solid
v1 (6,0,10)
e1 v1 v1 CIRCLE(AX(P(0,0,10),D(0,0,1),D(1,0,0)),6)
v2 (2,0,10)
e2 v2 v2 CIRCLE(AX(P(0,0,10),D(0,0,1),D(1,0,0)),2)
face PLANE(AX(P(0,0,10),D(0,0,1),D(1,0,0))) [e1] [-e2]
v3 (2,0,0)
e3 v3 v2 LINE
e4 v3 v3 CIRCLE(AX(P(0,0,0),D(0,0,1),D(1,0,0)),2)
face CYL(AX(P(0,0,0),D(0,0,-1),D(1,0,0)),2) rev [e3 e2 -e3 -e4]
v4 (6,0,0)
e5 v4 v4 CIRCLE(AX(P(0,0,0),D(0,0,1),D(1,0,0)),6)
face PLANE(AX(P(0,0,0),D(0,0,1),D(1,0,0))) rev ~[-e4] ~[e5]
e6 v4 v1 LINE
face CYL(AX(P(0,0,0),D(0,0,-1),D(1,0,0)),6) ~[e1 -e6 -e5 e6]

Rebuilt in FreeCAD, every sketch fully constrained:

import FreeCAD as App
import Part
import Sketcher

V = App.Vector

doc = App.newDocument("Part")
body = doc.addObject("PartDesign::Body", "Body")

# Sketch on XY plane
sketch1 = body.newObject("Sketcher::SketchObject", "Sketch")
sketch1.AttachmentSupport = (doc.getObject("XY_Plane"), [""])
sketch1.MapMode = "FlatFace"
sketch1.addGeometry([
    Part.Circle(V(0, 0, 0), V(0, 0, 1), 6),
    Part.Circle(V(0, 0, 0), V(0, 0, 1), 2),
], False)
sketch1.addConstraint([
    Sketcher.Constraint("Coincident", 0, 3, -1, 1),
    Sketcher.Constraint("Coincident", 1, 3, -1, 1),
    Sketcher.Constraint("Diameter", 0, 12.0),
    Sketcher.Constraint("Diameter", 1, 4.0),
])
pad1 = body.newObject("PartDesign::Pad", "Pad")
pad1.Profile = sketch1
pad1.Length = 10

doc.recompute()
